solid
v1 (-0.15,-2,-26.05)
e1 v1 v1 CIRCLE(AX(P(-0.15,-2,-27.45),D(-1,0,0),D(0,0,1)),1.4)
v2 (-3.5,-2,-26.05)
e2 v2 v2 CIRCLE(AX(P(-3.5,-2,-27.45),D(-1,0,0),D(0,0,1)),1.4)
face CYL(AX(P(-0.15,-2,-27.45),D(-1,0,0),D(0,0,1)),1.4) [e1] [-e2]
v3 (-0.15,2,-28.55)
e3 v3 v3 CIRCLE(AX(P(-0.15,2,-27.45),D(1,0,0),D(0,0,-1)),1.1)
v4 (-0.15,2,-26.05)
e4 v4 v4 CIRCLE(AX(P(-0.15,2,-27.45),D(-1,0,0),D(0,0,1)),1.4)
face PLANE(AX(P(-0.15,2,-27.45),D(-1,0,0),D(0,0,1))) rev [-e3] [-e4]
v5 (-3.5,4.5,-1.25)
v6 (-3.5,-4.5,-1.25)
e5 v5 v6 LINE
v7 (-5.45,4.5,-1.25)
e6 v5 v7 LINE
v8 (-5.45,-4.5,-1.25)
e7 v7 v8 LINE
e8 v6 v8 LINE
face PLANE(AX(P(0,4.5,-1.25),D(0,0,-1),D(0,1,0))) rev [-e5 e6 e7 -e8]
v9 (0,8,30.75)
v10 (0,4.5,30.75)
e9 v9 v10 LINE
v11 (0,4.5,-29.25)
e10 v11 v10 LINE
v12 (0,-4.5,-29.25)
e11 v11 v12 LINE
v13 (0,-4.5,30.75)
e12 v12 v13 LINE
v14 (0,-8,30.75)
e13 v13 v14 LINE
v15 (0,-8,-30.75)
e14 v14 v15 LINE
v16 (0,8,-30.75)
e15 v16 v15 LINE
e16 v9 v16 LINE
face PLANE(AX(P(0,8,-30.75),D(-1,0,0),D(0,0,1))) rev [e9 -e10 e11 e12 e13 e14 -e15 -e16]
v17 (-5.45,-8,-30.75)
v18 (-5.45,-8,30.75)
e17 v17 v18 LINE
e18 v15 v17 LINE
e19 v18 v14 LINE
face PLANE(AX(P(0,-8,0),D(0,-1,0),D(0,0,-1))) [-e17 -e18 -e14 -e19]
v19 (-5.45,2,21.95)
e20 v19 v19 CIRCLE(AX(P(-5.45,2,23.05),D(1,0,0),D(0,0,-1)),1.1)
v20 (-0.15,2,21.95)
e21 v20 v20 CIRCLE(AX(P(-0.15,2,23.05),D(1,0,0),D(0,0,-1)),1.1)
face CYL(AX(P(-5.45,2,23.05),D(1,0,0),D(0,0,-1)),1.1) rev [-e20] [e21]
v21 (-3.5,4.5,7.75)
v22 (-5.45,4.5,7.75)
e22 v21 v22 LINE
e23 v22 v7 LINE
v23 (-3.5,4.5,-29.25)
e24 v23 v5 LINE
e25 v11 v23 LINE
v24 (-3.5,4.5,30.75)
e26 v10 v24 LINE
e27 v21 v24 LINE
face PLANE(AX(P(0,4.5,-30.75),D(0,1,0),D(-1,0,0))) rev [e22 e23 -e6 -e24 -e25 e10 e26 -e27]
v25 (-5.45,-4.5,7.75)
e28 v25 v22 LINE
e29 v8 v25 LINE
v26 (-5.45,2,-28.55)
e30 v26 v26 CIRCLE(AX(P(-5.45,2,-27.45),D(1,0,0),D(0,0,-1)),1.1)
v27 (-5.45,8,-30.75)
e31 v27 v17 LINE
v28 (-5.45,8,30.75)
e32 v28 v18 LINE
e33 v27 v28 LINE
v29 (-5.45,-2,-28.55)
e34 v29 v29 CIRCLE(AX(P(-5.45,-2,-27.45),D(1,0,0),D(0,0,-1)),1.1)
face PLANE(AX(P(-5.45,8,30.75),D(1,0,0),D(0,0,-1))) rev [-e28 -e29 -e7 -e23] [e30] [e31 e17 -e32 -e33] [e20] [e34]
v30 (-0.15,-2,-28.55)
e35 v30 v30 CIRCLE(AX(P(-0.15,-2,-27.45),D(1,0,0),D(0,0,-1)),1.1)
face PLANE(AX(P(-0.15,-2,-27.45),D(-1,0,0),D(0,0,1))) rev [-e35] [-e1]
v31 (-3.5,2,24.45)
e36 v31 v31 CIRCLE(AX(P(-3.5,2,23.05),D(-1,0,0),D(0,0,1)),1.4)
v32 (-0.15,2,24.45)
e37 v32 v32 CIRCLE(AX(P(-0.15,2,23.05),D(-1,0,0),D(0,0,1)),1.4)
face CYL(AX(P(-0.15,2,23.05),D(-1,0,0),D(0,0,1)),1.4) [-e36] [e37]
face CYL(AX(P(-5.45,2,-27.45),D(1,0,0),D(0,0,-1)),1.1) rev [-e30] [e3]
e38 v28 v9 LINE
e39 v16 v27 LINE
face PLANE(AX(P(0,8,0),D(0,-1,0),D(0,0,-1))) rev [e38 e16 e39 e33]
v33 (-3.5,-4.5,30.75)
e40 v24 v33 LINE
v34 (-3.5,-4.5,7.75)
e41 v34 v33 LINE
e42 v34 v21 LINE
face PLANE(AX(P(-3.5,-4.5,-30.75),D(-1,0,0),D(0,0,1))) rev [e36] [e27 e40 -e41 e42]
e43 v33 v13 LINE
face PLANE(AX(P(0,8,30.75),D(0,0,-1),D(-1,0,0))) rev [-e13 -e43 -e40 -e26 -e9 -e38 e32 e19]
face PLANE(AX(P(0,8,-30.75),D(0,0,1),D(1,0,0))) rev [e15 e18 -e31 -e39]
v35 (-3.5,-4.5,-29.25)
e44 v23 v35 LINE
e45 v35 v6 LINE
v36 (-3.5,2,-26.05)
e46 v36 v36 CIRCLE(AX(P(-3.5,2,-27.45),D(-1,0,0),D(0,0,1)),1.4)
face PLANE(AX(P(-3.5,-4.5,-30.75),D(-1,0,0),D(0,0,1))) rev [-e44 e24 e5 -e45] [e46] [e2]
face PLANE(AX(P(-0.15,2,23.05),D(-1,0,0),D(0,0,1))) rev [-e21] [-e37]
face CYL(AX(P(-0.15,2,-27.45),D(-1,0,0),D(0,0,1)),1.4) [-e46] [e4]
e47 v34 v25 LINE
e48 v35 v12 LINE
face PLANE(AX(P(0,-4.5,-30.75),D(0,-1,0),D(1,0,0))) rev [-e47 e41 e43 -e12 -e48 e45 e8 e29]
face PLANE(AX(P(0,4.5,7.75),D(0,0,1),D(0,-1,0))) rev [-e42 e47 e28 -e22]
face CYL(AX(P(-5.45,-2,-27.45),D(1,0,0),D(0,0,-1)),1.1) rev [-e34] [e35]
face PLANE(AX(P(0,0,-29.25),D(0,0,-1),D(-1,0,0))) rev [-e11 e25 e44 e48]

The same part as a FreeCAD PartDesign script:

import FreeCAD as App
import Part
import Sketcher
from FreeCAD import Vector
Q = App.Units.Quantity

doc = App.newDocument("Part")
body = doc.addObject("PartDesign::Body", "Body")

sketch1 = body.newObject("Sketcher::SketchObject", "Sketch")
sketch1.AttachmentSupport = (doc.getObject("XZ_Plane"), [""])
sketch1.MapMode = "FlatFace"
sketch1.addGeometry(Part.LineSegment(Vector(-5, -31, 0), Vector(-5, 31, 0)), False)
sketch1.addGeometry(Part.LineSegment(Vector(-5, 31, 0), Vector(0, 31, 0)), False)
sketch1.addGeometry(Part.LineSegment(Vector(0, 31, 0), Vector(0, -31, 0)), False)
sketch1.addGeometry(Part.LineSegment(Vector(0, -31, 0), Vector(-5, -31, 0)), False)
sketch1.addConstraint(Sketcher.Constraint("Coincident", 0, 2, 1, 1))
sketch1.addConstraint(Sketcher.Constraint("Coincident", 1, 2, 2, 1))
sketch1.addConstraint(Sketcher.Constraint("Coincident", 2, 2, 3, 1))
sketch1.addConstraint(Sketcher.Constraint("Coincident", 3, 2, 0, 1))
sketch1.addConstraint(Sketcher.Constraint("Vertical", 0))
sketch1.addConstraint(Sketcher.Constraint("Horizontal", 1))
sketch1.addConstraint(Sketcher.Constraint("Vertical", 2))
sketch1.addConstraint(Sketcher.Constraint("Horizontal", 3))
sketch1.addConstraint(Sketcher.Constraint("Symmetric", 1, 2, 2, 2, -1, 1))
sketch1.addConstraint(Sketcher.Constraint("DistanceY", 0, 1, 0, 2, Q("61.5 mm")))
sketch1.addConstraint(Sketcher.Constraint("DistanceX", 1, 1, 1, 2, Q("5.45 mm")))
pad1 = body.newObject("PartDesign::Pad", "Pad")
pad1.Profile = sketch1
pad1.Length = 16
pad1.Midplane = True

sketch2 = body.newObject("Sketcher::SketchObject", "Sketch001")
sketch2.AttachmentSupport = (doc.getObject("XY_Plane"), [""])
sketch2.MapMode = "FlatFace"
sketch2.AttachmentOffset = App.Placement(Vector(0, 0, 30.75), App.Rotation())
sketch2.addGeometry(Part.LineSegment(Vector(-3.5, 4.5, 0), Vector(-3.5, -4.5, 0)), False)
sketch2.addGeometry(Part.LineSegment(Vector(-3.5, -4.5, 0), Vector(0, -4.5, 0)), False)
sketch2.addGeometry(Part.LineSegment(Vector(0, -4.5, 0), Vector(0, 4.5, 0)), False)
sketch2.addGeometry(Part.LineSegment(Vector(0, 4.5, 0), Vector(-3.5, 4.5, 0)), False)
sketch2.addConstraint(Sketcher.Constraint("Coincident", 0, 2, 1, 1))
sketch2.addConstraint(Sketcher.Constraint("Coincident", 1, 2, 2, 1))
sketch2.addConstraint(Sketcher.Constraint("Coincident", 2, 2, 3, 1))
sketch2.addConstraint(Sketcher.Constraint("Coincident", 3, 2, 0, 1))
sketch2.addConstraint(Sketcher.Constraint("Vertical", 0))
sketch2.addConstraint(Sketcher.Constraint("Horizontal", 1))
sketch2.addConstraint(Sketcher.Constraint("Vertical", 2))
sketch2.addConstraint(Sketcher.Constraint("Horizontal", 3))
sketch2.addConstraint(Sketcher.Constraint("Symmetric", 1, 2, 2, 2, -1, 1))
sketch2.addConstraint(Sketcher.Constraint("DistanceY", 0, 2, 0, 1, Q("9 mm")))
sketch2.addConstraint(Sketcher.Constraint("DistanceX", 1, 1, 1, 2, Q("3.5 mm")))
pocket1 = body.newObject("PartDesign::Pocket", "Pocket")
pocket1.Profile = sketch2
pocket1.Type = "ThroughAll"

sketch3 = body.newObject("Sketcher::SketchObject", "Sketch002")
sketch3.AttachmentSupport = (doc.getObject("YZ_Plane"), [""])
sketch3.MapMode = "FlatFace"
sketch3.AttachmentOffset = App.Placement(Vector(0, 0, -5.45), App.Rotation())
sketch3.addGeometry(Part.Circle(Vector(2, -27.4, 0), Vector(0, 0, 1), 1.4), False)
sketch3.addGeometry(Part.Circle(Vector(-2, -27.4, 0), Vector(0, 0, 1), 1.4), False)
sketch3.addGeometry(Part.Circle(Vector(2, 23.1, 0), Vector(0, 0, 1), 1.4), False)
sketch3.addConstraint(Sketcher.Constraint("Equal", 0, 1))
sketch3.addConstraint(Sketcher.Constraint("Equal", 1, 2))
sketch3.addConstraint(Sketcher.Constraint("Symmetric", 0, 3, 1, 3, -2))
sketch3.addConstraint(Sketcher.Constraint("Vertical", 0, 3, 2, 3))
sketch3.addConstraint(Sketcher.Constraint("Diameter", 0, Q("2.8 mm")))
sketch3.addConstraint(Sketcher.Constraint("DistanceX", -1, 1, 0, 3, Q("2 mm")))
sketch3.addConstraint(Sketcher.Constraint("DistanceY", 0, 3, 2, 3, Q("50.5 mm")))
sketch3.addConstraint(Sketcher.Constraint("DistanceY", 0, 3, -1, 1, Q("27.45 mm")))
pad2 = body.newObject("PartDesign::Pad", "Pad001")
pad2.Profile = sketch3
pad2.Length = 5.3

sketch4 = body.newObject("Sketcher::SketchObject", "Sketch003")
sketch4.AttachmentSupport = (doc.getObject("YZ_Plane"), [""])
sketch4.MapMode = "FlatFace"
sketch4.AttachmentOffset = App.Placement(Vector(0, 0, -0.15), App.Rotation())
sketch4.addGeometry(Part.Circle(Vector(2, 23.1, 0), Vector(0, 0, 1), 1.1), False)
sketch4.addGeometry(Part.Circle(Vector(2, -27.4, 0), Vector(0, 0, 1), 1.1), False)
sketch4.addGeometry(Part.Circle(Vector(-2, -27.4, 0), Vector(0, 0, 1), 1.1), False)
sketch4.addConstraint(Sketcher.Constraint("Equal", 0, 1))
sketch4.addConstraint(Sketcher.Constraint("Equal", 1, 2))
sketch4.addConstraint(Sketcher.Constraint("Symmetric", 1, 3, 2, 3, -2))
sketch4.addConstraint(Sketcher.Constraint("Vertical", 0, 3, 1, 3))
sketch4.addConstraint(Sketcher.Constraint("Diameter", 0, Q("2.2 mm")))
sketch4.addConstraint(Sketcher.Constraint("DistanceX", -1, 1, 0, 3, Q("2 mm")))
sketch4.addConstraint(Sketcher.Constraint("DistanceY", 1, 3, 0, 3, Q("50.5 mm")))
sketch4.addConstraint(Sketcher.Constraint("DistanceY", -1, 1, 0, 3, Q("23.05 mm")))
pocket2 = body.newObject("PartDesign::Pocket", "Pocket001")
pocket2.Profile = sketch4
pocket2.Type = "ThroughAll"

sketch5 = body.newObject("Sketcher::SketchObject", "Sketch004")
sketch5.AttachmentSupport = (doc.getObject("XY_Plane"), [""])
sketch5.MapMode = "FlatFace"
sketch5.AttachmentOffset = App.Placement(Vector(0, 0, -30.75), App.Rotation())
sketch5.addGeometry(Part.LineSegment(Vector(0, 8, 0), Vector(0, -8, 0)), False)
sketch5.addGeometry(Part.LineSegment(Vector(0, -8, 0), Vector(-4.5, -8, 0)), False)
sketch5.addGeometry(Part.LineSegment(Vector(-4.5, -8, 0), Vector(-4.5, 8, 0)), False)
sketch5.addGeometry(Part.LineSegment(Vector(-4.5, 8, 0), Vector(0, 8, 0)), False)
sketch5.addConstraint(Sketcher.Constraint("Coincident", 0, 2, 1, 1))
sketch5.addConstraint(Sketcher.Constraint("Coincident", 1, 2, 2, 1))
sketch5.addConstraint(Sketcher.Constraint("Coincident", 2, 2, 3, 1))
sketch5.addConstraint(Sketcher.Constraint("Coincident", 3, 2, 0, 1))
sketch5.addConstraint(Sketcher.Constraint("Vertical", 0))
sketch5.addConstraint(Sketcher.Constraint("Horizontal", 1))
sketch5.addConstraint(Sketcher.Constraint("Vertical", 2))
sketch5.addConstraint(Sketcher.Constraint("Horizontal", 3))
sketch5.addConstraint(Sketcher.Constraint("Symmetric", 0, 2, 3, 2, -1, 1))
sketch5.addConstraint(Sketcher.Constraint("DistanceY", 0, 2, 0, 1, Q("16 mm")))
sketch5.addConstraint(Sketcher.Constraint("DistanceX", 1, 2, 1, 1, Q("4.529278 mm")))
pad3 = body.newObject("PartDesign::Pad", "Pad002")
pad3.Profile = sketch5
pad3.Length = 1.5

sketch6 = body.newObject("Sketcher::SketchObject", "Sketch005")
sketch6.AttachmentSupport = (doc.getObject("YZ_Plane"), [""])
sketch6.MapMode = "FlatFace"
sketch6.AttachmentOffset = App.Placement(Vector(0, 0, -5.45), App.Rotation())
sketch6.addGeometry(Part.LineSegment(Vector(4, -1, 0), Vector(-4, -1, 0)), False)
sketch6.addGeometry(Part.LineSegment(Vector(-4, -1, 0), Vector(-4, 8, 0)), False)
sketch6.addGeometry(Part.LineSegment(Vector(-4, 8, 0), Vector(4, 8, 0)), False)
sketch6.addGeometry(Part.LineSegment(Vector(4, 8, 0), Vector(4, -1, 0)), False)
sketch6.addConstraint(Sketcher.Constraint("Coincident", 0, 2, 1, 1))
sketch6.addConstraint(Sketcher.Constraint("Coincident", 1, 2, 2, 1))
sketch6.addConstraint(Sketcher.Constraint("Coincident", 2, 2, 3, 1))
sketch6.addConstraint(Sketcher.Constraint("Coincident", 3, 2, 0, 1))
sketch6.addConstraint(Sketcher.Constraint("Horizontal", 0))
sketch6.addConstraint(Sketcher.Constraint("Vertical", 1))
sketch6.addConstraint(Sketcher.Constraint("Horizontal", 2))
sketch6.addConstraint(Sketcher.Constraint("Vertical", 3))
sketch6.addConstraint(Sketcher.Constraint("Equal", 2, 1))
sketch6.addConstraint(Sketcher.Constraint("DistanceX", 0, 2, 0, 1, Q("9 mm")))
sketch6.addConstraint(Sketcher.Constraint("DistanceX", 0, 2, -1, 1, Q("4.5 mm")))
sketch6.addConstraint(Sketcher.Constraint("DistanceY", 0, 2, -1, 1, Q("1.25 mm")))
pocket3 = body.newObject("PartDesign::Pocket", "Pocket002")
pocket3.Profile = sketch6
pocket3.Type = "ThroughAll"
pocket3.Reversed = True

doc.recompute()
